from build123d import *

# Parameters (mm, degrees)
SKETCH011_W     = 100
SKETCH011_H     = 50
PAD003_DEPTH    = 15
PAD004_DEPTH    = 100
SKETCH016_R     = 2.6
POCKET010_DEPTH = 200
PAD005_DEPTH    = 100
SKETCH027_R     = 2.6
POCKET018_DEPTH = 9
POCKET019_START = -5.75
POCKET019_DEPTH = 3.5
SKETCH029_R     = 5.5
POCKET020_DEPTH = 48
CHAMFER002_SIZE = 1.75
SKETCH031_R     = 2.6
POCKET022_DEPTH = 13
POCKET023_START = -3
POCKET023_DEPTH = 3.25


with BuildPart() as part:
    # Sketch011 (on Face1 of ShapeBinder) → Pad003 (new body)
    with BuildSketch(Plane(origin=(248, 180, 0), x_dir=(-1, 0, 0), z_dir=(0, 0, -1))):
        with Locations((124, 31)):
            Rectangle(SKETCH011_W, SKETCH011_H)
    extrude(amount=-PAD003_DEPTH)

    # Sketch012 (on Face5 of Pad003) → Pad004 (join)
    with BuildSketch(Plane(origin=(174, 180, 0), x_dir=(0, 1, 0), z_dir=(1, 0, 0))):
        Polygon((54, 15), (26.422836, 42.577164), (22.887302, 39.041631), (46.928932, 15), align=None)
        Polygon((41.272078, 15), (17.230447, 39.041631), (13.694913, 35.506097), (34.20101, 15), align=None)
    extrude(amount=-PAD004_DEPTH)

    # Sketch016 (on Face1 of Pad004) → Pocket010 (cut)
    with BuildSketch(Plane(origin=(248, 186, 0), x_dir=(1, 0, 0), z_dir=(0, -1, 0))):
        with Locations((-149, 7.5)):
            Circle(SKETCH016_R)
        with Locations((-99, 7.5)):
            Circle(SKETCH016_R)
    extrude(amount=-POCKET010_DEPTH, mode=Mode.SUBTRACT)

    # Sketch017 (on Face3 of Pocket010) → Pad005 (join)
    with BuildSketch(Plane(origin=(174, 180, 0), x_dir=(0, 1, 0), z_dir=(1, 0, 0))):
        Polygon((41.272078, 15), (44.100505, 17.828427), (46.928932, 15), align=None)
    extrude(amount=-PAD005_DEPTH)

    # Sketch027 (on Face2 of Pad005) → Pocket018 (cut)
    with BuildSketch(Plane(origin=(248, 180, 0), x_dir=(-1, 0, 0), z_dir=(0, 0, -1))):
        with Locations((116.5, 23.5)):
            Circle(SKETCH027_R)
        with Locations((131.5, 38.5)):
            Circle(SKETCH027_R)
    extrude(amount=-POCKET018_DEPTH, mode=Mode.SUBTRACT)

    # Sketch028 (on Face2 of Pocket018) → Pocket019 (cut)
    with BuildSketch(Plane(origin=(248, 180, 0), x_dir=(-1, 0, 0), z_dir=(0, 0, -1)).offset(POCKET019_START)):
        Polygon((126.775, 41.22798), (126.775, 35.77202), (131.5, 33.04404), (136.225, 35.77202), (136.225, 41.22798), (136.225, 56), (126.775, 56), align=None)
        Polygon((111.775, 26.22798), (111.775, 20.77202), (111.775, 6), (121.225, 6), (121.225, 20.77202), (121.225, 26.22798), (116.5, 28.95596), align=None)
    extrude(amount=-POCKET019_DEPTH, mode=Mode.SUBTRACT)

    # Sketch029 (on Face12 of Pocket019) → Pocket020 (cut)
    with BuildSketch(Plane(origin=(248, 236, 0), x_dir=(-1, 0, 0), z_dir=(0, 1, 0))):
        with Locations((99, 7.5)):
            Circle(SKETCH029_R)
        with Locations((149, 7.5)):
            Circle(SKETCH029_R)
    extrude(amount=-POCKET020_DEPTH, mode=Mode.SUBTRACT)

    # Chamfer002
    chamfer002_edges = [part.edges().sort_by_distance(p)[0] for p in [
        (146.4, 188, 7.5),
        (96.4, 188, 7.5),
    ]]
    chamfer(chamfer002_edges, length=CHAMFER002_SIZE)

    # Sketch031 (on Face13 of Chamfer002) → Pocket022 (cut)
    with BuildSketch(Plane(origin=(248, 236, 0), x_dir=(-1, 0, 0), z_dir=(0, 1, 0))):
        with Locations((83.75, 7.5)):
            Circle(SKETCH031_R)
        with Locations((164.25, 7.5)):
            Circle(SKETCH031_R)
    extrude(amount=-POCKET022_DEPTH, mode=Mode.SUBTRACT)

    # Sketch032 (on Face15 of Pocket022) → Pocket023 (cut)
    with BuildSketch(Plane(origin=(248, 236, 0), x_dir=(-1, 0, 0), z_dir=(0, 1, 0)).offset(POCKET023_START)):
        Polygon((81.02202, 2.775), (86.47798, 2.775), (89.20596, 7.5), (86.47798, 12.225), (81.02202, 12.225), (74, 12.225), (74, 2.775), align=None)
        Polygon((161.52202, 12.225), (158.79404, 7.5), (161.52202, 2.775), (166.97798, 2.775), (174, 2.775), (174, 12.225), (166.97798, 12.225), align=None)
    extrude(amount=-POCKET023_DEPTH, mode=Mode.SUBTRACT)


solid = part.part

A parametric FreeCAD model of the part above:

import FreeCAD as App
import Part
import Sketcher
Q = App.Units.Quantity


def edges_at(feature, points):
    """Names of the edges that pass closest to the given points."""
    edges = feature.Shape.Edges
    near = lambda p: min(range(len(edges)), key=lambda i: edges[i].distToShape(Part.Vertex(*p))[0])
    return sorted({f"Edge{near(p) + 1}" for p in points})

doc = App.newDocument("Part")
body = doc.addObject("PartDesign::Body", "Body")

# Sketch on XY plane
sketch1 = body.newObject("Sketcher::SketchObject", "Sketch")
sketch1.AttachmentSupport = (doc.getObject("XY_Plane"), [""])
sketch1.MapMode = "FlatFace"
sketch1.addGeometry([
    Part.LineSegment(App.Vector(174, 236, 0), App.Vector(174, 186, 0)),
    Part.LineSegment(App.Vector(174, 186, 0), App.Vector(74, 186, 0)),
    Part.LineSegment(App.Vector(74, 186, 0), App.Vector(74, 236, 0)),
    Part.LineSegment(App.Vector(74, 236, 0), App.Vector(174, 236, 0)),
], False)
sketch1.addConstraint([
    Sketcher.Constraint("Coincident", 0, 2, 1, 1),
    Sketcher.Constraint("Coincident", 1, 2, 2, 1),
    Sketcher.Constraint("Coincident", 2, 2, 3, 1),
    Sketcher.Constraint("Coincident", 3, 2, 0, 1),
    Sketcher.Constraint("Vertical", 0),
    Sketcher.Constraint("Horizontal", 1),
    Sketcher.Constraint("Vertical", 2),
    Sketcher.Constraint("Horizontal", 3),
    Sketcher.Constraint("DistanceX", 1, 2, 1, 1, 100.0),
    Sketcher.Constraint("DistanceY", 0, 2, 0, 1, 50.0),
    Sketcher.Constraint("DistanceX", -1, 1, 0, 2, 174.0),
    Sketcher.Constraint("DistanceY", -1, 1, 0, 2, 186.0),
])
pad1 = body.newObject("PartDesign::Pad", "Pad")
pad1.Profile = sketch1
pad1.Length = 15

# Sketch on YZ plane
sketch2 = body.newObject("Sketcher::SketchObject", "Sketch001")
sketch2.AttachmentSupport = (doc.getObject("YZ_Plane"), [""])
sketch2.MapMode = "FlatFace"
sketch2.AttachmentOffset = App.Placement(App.Vector(0, 0, 174), App.Rotation())
sketch2.addGeometry([
    Part.LineSegment(App.Vector(234, 15, 0), App.Vector(206.4, 42.6, 0)),  # 0
    Part.LineSegment(App.Vector(206.4, 42.6, 0), App.Vector(202.9, 39, 0)),  # 1
    Part.LineSegment(App.Vector(202.9, 39, 0), App.Vector(226.9, 15, 0)),  # 2
    Part.LineSegment(App.Vector(226.9, 15, 0), App.Vector(234, 15, 0)),  # 3
    Part.LineSegment(App.Vector(221.3, 15, 0), App.Vector(197.2, 39, 0)),  # 4
    Part.LineSegment(App.Vector(197.2, 39, 0), App.Vector(193.7, 35.5, 0)),  # 5
    Part.LineSegment(App.Vector(193.7, 35.5, 0), App.Vector(214.2, 15, 0)),  # 6
    Part.LineSegment(App.Vector(214.2, 15, 0), App.Vector(221.3, 15, 0)),  # 7
], False)
sketch2.addConstraint([
    Sketcher.Constraint("Coincident", 0, 2, 1, 1),
    Sketcher.Constraint("Coincident", 1, 2, 2, 1),
    Sketcher.Constraint("Coincident", 2, 2, 3, 1),
    Sketcher.Constraint("Coincident", 3, 2, 0, 1),
    Sketcher.Constraint("Coincident", 4, 2, 5, 1),
    Sketcher.Constraint("Coincident", 5, 2, 6, 1),
    Sketcher.Constraint("Coincident", 6, 2, 7, 1),
    Sketcher.Constraint("Coincident", 7, 2, 4, 1),
    Sketcher.Constraint("Horizontal", 3),
    Sketcher.Constraint("Horizontal", 7),
    Sketcher.Constraint("Perpendicular", 0, 1),
    Sketcher.Constraint("Perpendicular", 1, 2),
    Sketcher.Constraint("Parallel", 2, 4),
    Sketcher.Constraint("Perpendicular", 4, 5),
    Sketcher.Constraint("Perpendicular", 5, 6),
    Sketcher.Constraint("Horizontal", 1, 2, 4, 2),
    Sketcher.Constraint("Horizontal", 3, 2, 6, 2),
    Sketcher.Constraint("Equal", 3, 7),
    Sketcher.Constraint("Angle", 0, Q("135 deg")),
    Sketcher.Constraint("Distance", 0, 38.999999),
    Sketcher.Constraint("Distance", 1, 4.999999),
    Sketcher.Constraint("DistanceY", -1, 1, 2, 2, 15.0),
    Sketcher.Constraint("DistanceX", -1, 1, 3, 2, 234.0),
    Sketcher.Constraint("DistanceX", -1, 1, 6, 2, 214.20101),
])
pad2 = body.newObject("PartDesign::Pad", "Pad001")
pad2.Profile = sketch2
pad2.Length = 100
pad2.Reversed = True

# Sketch on XZ plane
sketch3 = body.newObject("Sketcher::SketchObject", "Sketch002")
sketch3.AttachmentSupport = (doc.getObject("XZ_Plane"), [""])
sketch3.MapMode = "FlatFace"
sketch3.AttachmentOffset = App.Placement(App.Vector(0, 0, -186), App.Rotation())
sketch3.addGeometry([
    Part.Circle(App.Vector(99, 7.5, 0), App.Vector(0, 0, 1), 2.6),
    Part.Circle(App.Vector(149, 7.5, 0), App.Vector(0, 0, 1), 2.6),
], False)
sketch3.addConstraint([
    Sketcher.Constraint("Equal", 0, 1),
    Sketcher.Constraint("Horizontal", 0, 3, 1, 3),
    Sketcher.Constraint("Diameter", 0, 5.2),
    Sketcher.Constraint("DistanceX", -1, 1, 0, 3, 99.0),
    Sketcher.Constraint("DistanceX", -1, 1, 1, 3, 149.0),
    Sketcher.Constraint("DistanceY", -1, 1, 0, 3, 7.5),
])
pocket1 = body.newObject("PartDesign::Pocket", "Pocket")
pocket1.Profile = sketch3
pocket1.Length = 200

# Sketch on YZ plane
sketch4 = body.newObject("Sketcher::SketchObject", "Sketch003")
sketch4.AttachmentSupport = (doc.getObject("YZ_Plane"), [""])
sketch4.MapMode = "FlatFace"
sketch4.AttachmentOffset = App.Placement(App.Vector(0, 0, 174), App.Rotation())
sketch4.addGeometry([
    Part.LineSegment(App.Vector(224.1, 17.8, 0), App.Vector(221.3, 15, 0)),
    Part.LineSegment(App.Vector(221.3, 15, 0), App.Vector(226.9, 15, 0)),
    Part.LineSegment(App.Vector(226.9, 15, 0), App.Vector(224.1, 17.8, 0)),
], False)
sketch4.addConstraint([
    Sketcher.Constraint("Coincident", 0, 2, 1, 1),
    Sketcher.Constraint("Coincident", 1, 2, 2, 1),
    Sketcher.Constraint("Coincident", 2, 2, 0, 1),
    Sketcher.Constraint("Horizontal", 1),
    Sketcher.Constraint("Perpendicular", 0, 2),
    Sketcher.Constraint("Equal", 0, 2),
    Sketcher.Constraint("Distance", 0, 4.0),
    Sketcher.Constraint("DistanceY", -1, 1, 0, 2, 15.0),
    Sketcher.Constraint("DistanceX", -1, 1, 0, 2, 221.272078),
])
pad3 = body.newObject("PartDesign::Pad", "Pad002")
pad3.Profile = sketch4
pad3.Length = 100
pad3.Reversed = True

# Sketch on XY plane
sketch5 = body.newObject("Sketcher::SketchObject", "Sketch004")
sketch5.AttachmentSupport = (doc.getObject("XY_Plane"), [""])
sketch5.MapMode = "FlatFace"
sketch5.addGeometry([
    Part.Circle(App.Vector(131.5, 203.5, 0), App.Vector(0, 0, 1), 2.6),
    Part.Circle(App.Vector(116.5, 218.5, 0), App.Vector(0, 0, 1), 2.6),
], False)
sketch5.addConstraint([
    Sketcher.Constraint("Equal", 0, 1),
    Sketcher.Constraint("Diameter", 0, 5.2),
    Sketcher.Constraint("DistanceX", 1, 3, 0, 3, 15.0),
    Sketcher.Constraint("DistanceY", 0, 3, 1, 3, 15.0),
    Sketcher.Constraint("DistanceX", -1, 1, 0, 3, 131.5),
    Sketcher.Constraint("DistanceY", -1, 1, 0, 3, 203.5),
])
pocket2 = body.newObject("PartDesign::Pocket", "Pocket001")
pocket2.Profile = sketch5
pocket2.Length = 9
pocket2.Reversed = True

# Sketch on XY plane
sketch6 = body.newObject("Sketcher::SketchObject", "Sketch005")
sketch6.AttachmentSupport = (doc.getObject("XY_Plane"), [""])
sketch6.MapMode = "FlatFace"
sketch6.AttachmentOffset = App.Placement(App.Vector(0, 0, 5.75), App.Rotation())
sketch6.addGeometry([
    Part.LineSegment(App.Vector(121, 216, 0), App.Vector(116, 213, 0)),  # 0
    Part.LineSegment(App.Vector(116, 213, 0), App.Vector(112, 216, 0)),  # 1
    Part.LineSegment(App.Vector(112, 216, 0), App.Vector(112, 236, 0)),  # 2
    Part.LineSegment(App.Vector(112, 236, 0), App.Vector(121, 236, 0)),  # 3
    Part.LineSegment(App.Vector(121, 236, 0), App.Vector(121, 216, 0)),  # 4
    Part.LineSegment(App.Vector(136, 206, 0), App.Vector(136, 186, 0)),  # 5
    Part.LineSegment(App.Vector(136, 186, 0), App.Vector(127, 186, 0)),  # 6
    Part.LineSegment(App.Vector(127, 186, 0), App.Vector(127, 206, 0)),  # 7
    Part.LineSegment(App.Vector(127, 206, 0), App.Vector(132, 209, 0)),  # 8
    Part.LineSegment(App.Vector(132, 209, 0), App.Vector(136, 206, 0)),  # 9
], False)
sketch6.addConstraint([
    Sketcher.Constraint("Coincident", 0, 2, 1, 1),
    Sketcher.Constraint("Coincident", 1, 2, 2, 1),
    Sketcher.Constraint("Coincident", 2, 2, 3, 1),
    Sketcher.Constraint("Coincident", 3, 2, 4, 1),
    Sketcher.Constraint("Coincident", 4, 2, 0, 1),
    Sketcher.Constraint("Coincident", 5, 2, 6, 1),
    Sketcher.Constraint("Coincident", 6, 2, 7, 1),
    Sketcher.Constraint("Coincident", 7, 2, 8, 1),
    Sketcher.Constraint("Coincident", 8, 2, 9, 1),
    Sketcher.Constraint("Coincident", 9, 2, 5, 1),
    Sketcher.Constraint("Vertical", 2),
    Sketcher.Constraint("Horizontal", 3),
    Sketcher.Constraint("Vertical", 4),
    Sketcher.Constraint("Vertical", 5),
    Sketcher.Constraint("Horizontal", 6),
    Sketcher.Constraint("Vertical", 7),
    Sketcher.Constraint("Parallel", 0, 8),
    Sketcher.Constraint("Parallel", 1, 9),
    Sketcher.Constraint("Horizontal", 1, 2, 4, 2),
    Sketcher.Constraint("Horizontal", 7, 2, 9, 2),
    Sketcher.Constraint("Equal", 3, 6),
    Sketcher.Constraint("Equal", 4, 5),
    Sketcher.Constraint("Equal", 0, 1),
    Sketcher.Constraint("Angle", 0, Q("-150 deg")),
    Sketcher.Constraint("DistanceY", -1, 1, 2, 2, 236.0),
    Sketcher.Constraint("DistanceY", -1, 1, 5, 2, 186.0),
    Sketcher.Constraint("DistanceX", 4, 2, 5, 2, 15.0),
    Sketcher.Constraint("DistanceX", 3, 1, 3, 2, 9.45),
    Sketcher.Constraint("DistanceX", -1, 1, 0, 2, 116.5),
    Sketcher.Constraint("DistanceY", 2, 1, 2, 2, 20.22798),
])
pocket3 = body.newObject("PartDesign::Pocket", "Pocket002")
pocket3.Profile = sketch6
pocket3.Length = 3.5
pocket3.Reversed = True

# Sketch on XZ plane
sketch7 = body.newObject("Sketcher::SketchObject", "Sketch006")
sketch7.AttachmentSupport = (doc.getObject("XZ_Plane"), [""])
sketch7.MapMode = "FlatFace"
sketch7.AttachmentOffset = App.Placement(App.Vector(0, 0, -236), App.Rotation())
sketch7.addGeometry([
    Part.Circle(App.Vector(149, 8, 0), App.Vector(0, 0, 1), 6),
    Part.Circle(App.Vector(99, 8, 0), App.Vector(0, 0, 1), 6),
], False)
sketch7.addConstraint([
    Sketcher.Constraint("Equal", 0, 1),
    Sketcher.Constraint("Horizontal", 0, 3, 1, 3),
    Sketcher.Constraint("Diameter", 0, 11.0),
    Sketcher.Constraint("DistanceX", -1, 1, 0, 3, 149.0),
    Sketcher.Constraint("DistanceX", -1, 1, 1, 3, 99.0),
    Sketcher.Constraint("DistanceY", -1, 1, 0, 3, 7.5),
])
pocket4 = body.newObject("PartDesign::Pocket", "Pocket003")
pocket4.Profile = sketch7
pocket4.Length = 48
pocket4.Reversed = True
doc.recompute()

chamfer = body.newObject("PartDesign::Chamfer", "Chamfer")
chamfer.Base = (pocket4, edges_at(pocket4, [(146.4, 188, 7.5), (96.4, 188, 7.5)]))
chamfer.Size = 1.75

# Sketch on XZ plane
sketch8 = body.newObject("Sketcher::SketchObject", "Sketch007")
sketch8.AttachmentSupport = (doc.getObject("XZ_Plane"), [""])
sketch8.MapMode = "FlatFace"
sketch8.AttachmentOffset = App.Placement(App.Vector(0, 0, -236), App.Rotation())
sketch8.addGeometry([
    Part.Circle(App.Vector(164.2, 7.5, 0), App.Vector(0, 0, 1), 2.6),
    Part.Circle(App.Vector(83.8, 7.5, 0), App.Vector(0, 0, 1), 2.6),
], False)
sketch8.addConstraint([
    Sketcher.Constraint("Equal", 0, 1),
    Sketcher.Constraint("Horizontal", 0, 3, 1, 3),
    Sketcher.Constraint("Diameter", 0, 5.2),
    Sketcher.Constraint("DistanceY", -1, 1, 0, 3, 7.5),
    Sketcher.Constraint("DistanceX", 1, 3, 0, 3, 80.5),
    Sketcher.Constraint("DistanceX", -1, 1, 0, 3, 164.25),
])
pocket5 = body.newObject("PartDesign::Pocket", "Pocket004")
pocket5.Profile = sketch8
pocket5.Length = 13
pocket5.Reversed = True

# Sketch on XZ plane
sketch9 = body.newObject("Sketcher::SketchObject", "Sketch008")
sketch9.AttachmentSupport = (doc.getObject("XZ_Plane"), [""])
sketch9.MapMode = "FlatFace"
sketch9.AttachmentOffset = App.Placement(App.Vector(0, 0, -233), App.Rotation())
sketch9.addGeometry([
    Part.LineSegment(App.Vector(162, 3, 0), App.Vector(159, 8, 0)),  # 0
    Part.LineSegment(App.Vector(159, 8, 0), App.Vector(162, 12, 0)),  # 1
    Part.LineSegment(App.Vector(162, 12, 0), App.Vector(174, 12, 0)),  # 2
    Part.LineSegment(App.Vector(174, 12, 0), App.Vector(174, 3, 0)),  # 3
    Part.LineSegment(App.Vector(174, 3, 0), App.Vector(162, 3, 0)),  # 4
    Part.LineSegment(App.Vector(86, 12, 0), App.Vector(89, 8, 0)),  # 5
    Part.LineSegment(App.Vector(89, 8, 0), App.Vector(86, 3, 0)),  # 6
    Part.LineSegment(App.Vector(86, 3, 0), App.Vector(74, 3, 0)),  # 7
    Part.LineSegment(App.Vector(74, 3, 0), App.Vector(74, 12, 0)),  # 8
    Part.LineSegment(App.Vector(74, 12, 0), App.Vector(86, 12, 0)),  # 9
], False)
sketch9.addConstraint([
    Sketcher.Constraint("Coincident", 0, 2, 1, 1),
    Sketcher.Constraint("Coincident", 1, 2, 2, 1),
    Sketcher.Constraint("Coincident", 2, 2, 3, 1),
    Sketcher.Constraint("Coincident", 3, 2, 4, 1),
    Sketcher.Constraint("Coincident", 4, 2, 0, 1),
    Sketcher.Constraint("Coincident", 5, 2, 6, 1),
    Sketcher.Constraint("Coincident", 6, 2, 7, 1),
    Sketcher.Constraint("Coincident", 7, 2, 8, 1),
    Sketcher.Constraint("Coincident", 8, 2, 9, 1),
    Sketcher.Constraint("Coincident", 9, 2, 5, 1),
    Sketcher.Constraint("Horizontal", 2),
    Sketcher.Constraint("Vertical", 3),
    Sketcher.Constraint("Horizontal", 4),
    Sketcher.Constraint("Horizontal", 7),
    Sketcher.Constraint("Vertical", 8),
    Sketcher.Constraint("Horizontal", 9),
    Sketcher.Constraint("Parallel", 0, 5),
    Sketcher.Constraint("Parallel", 1, 6),
    Sketcher.Constraint("Horizontal", 0, 2, 5, 2),
    Sketcher.Constraint("Horizontal", 4, 2, 6, 2),
    Sketcher.Constraint("Horizontal", 2, 2, 8, 2),
    Sketcher.Constraint("Vertical", 1, 2, 4, 2),
    Sketcher.Constraint("Vertical", 6, 2, 9, 2),
    Sketcher.Constraint("Equal", 4, 7),
    Sketcher.Constraint("Angle", 0, Q("120 deg")),
    Sketcher.Constraint("DistanceX", -1, 1, 2, 2, 174.0),
    Sketcher.Constraint("DistanceX", -1, 1, 7, 2, 74.0),
    Sketcher.Constraint("DistanceY", 3, 2, 3, 1, 9.45),
    Sketcher.Constraint("DistanceY", -1, 1, 0, 2, 7.5),
    Sketcher.Constraint("DistanceX", 2, 1, 2, 2, 12.47798),
])
pocket6 = body.newObject("PartDesign::Pocket", "Pocket005")
pocket6.Profile = sketch9
pocket6.Length = 3.25
pocket6.Reversed = True

doc.recompute()
